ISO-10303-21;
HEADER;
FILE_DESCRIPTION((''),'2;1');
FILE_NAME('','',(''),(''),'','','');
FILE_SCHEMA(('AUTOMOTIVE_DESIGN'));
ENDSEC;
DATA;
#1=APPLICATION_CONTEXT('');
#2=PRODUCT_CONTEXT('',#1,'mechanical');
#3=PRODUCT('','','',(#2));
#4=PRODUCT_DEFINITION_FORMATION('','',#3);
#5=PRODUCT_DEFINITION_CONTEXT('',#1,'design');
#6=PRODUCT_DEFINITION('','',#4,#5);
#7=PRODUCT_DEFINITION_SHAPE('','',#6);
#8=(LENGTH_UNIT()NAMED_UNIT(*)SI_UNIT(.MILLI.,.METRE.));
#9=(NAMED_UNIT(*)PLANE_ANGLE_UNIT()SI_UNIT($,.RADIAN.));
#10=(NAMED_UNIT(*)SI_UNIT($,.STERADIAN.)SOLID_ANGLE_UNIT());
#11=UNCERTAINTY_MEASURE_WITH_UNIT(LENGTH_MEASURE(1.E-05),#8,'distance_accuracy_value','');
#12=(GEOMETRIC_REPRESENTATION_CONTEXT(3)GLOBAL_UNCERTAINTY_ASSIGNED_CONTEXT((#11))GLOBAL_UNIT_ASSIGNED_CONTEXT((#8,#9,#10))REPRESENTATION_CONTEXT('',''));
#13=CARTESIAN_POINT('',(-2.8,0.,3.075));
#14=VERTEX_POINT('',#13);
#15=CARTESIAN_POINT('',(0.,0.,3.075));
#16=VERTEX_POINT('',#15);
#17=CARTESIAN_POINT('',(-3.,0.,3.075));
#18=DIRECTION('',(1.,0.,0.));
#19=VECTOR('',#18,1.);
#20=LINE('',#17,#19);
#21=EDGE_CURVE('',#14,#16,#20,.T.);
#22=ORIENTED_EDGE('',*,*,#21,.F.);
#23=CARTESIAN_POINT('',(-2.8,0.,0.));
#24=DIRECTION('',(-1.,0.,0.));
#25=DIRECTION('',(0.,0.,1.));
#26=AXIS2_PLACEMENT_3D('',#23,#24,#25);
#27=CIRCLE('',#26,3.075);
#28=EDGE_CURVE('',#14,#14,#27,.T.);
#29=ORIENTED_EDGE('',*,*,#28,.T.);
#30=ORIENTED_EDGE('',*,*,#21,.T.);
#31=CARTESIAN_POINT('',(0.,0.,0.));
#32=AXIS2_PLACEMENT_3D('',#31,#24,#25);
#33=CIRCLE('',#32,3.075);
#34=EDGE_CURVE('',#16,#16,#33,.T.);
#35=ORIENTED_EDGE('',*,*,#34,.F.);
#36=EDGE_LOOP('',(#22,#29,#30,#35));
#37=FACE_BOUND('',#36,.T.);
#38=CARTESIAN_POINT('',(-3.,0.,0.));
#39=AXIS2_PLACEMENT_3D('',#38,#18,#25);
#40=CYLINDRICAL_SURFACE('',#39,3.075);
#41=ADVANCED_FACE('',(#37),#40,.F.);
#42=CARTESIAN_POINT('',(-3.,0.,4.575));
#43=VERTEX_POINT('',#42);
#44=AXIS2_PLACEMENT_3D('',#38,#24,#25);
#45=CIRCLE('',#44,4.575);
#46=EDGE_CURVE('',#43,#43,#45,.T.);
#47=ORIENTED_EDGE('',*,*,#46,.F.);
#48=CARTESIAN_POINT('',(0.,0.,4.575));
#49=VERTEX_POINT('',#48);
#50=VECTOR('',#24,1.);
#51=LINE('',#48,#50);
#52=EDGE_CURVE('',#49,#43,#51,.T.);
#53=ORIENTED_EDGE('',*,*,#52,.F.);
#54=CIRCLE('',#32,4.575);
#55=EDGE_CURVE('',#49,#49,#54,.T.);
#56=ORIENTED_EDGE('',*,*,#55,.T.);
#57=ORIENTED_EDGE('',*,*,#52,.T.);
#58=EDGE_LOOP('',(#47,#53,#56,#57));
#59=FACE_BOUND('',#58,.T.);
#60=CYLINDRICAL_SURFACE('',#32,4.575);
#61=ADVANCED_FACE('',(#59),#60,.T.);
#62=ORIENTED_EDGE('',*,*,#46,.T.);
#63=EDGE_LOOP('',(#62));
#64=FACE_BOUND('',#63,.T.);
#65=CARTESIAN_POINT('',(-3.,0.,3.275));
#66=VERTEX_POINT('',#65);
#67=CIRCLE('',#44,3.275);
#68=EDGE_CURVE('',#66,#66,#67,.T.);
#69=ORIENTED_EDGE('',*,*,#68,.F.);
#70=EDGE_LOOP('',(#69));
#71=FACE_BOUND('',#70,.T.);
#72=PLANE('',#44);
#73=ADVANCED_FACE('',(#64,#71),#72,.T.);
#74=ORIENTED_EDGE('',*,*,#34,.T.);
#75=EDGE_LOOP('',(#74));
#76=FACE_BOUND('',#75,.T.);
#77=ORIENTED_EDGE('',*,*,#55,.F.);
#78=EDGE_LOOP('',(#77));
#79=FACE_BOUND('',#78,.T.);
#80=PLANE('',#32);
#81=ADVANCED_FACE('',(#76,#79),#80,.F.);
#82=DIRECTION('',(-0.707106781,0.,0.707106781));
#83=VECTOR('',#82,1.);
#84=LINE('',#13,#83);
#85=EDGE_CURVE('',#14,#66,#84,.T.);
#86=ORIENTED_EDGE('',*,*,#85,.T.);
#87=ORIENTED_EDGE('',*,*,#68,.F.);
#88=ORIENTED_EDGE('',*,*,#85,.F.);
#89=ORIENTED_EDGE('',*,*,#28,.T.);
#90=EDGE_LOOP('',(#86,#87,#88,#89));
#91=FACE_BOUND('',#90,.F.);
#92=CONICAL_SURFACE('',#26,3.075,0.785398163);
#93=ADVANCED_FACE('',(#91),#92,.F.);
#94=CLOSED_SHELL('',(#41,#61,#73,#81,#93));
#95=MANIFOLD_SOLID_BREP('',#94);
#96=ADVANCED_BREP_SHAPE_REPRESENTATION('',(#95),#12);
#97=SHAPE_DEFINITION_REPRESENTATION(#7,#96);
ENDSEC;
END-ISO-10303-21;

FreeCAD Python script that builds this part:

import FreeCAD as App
import Part
import Sketcher

V = App.Vector


def edges_at(feature, points):
    """Names of the edges that pass closest to the given points."""
    edges = feature.Shape.Edges
    near = lambda p: min(range(len(edges)), key=lambda i: edges[i].distToShape(Part.Vertex(*p))[0])
    return sorted({f"Edge{near(p) + 1}" for p in points})

doc = App.newDocument("Part")
params = doc.addObject("Spreadsheet::Sheet", "Params")
for row, (alias, value) in enumerate([
    ("sketch1_width", "3 mm"),
    ("sketch1_height", "1.5 mm"),
    ("revolution_angle", "360 deg"),
    ("chamfer_size", "0.2 mm"),
], start=1):
    params.set(f"A{row}", alias)
    params.set(f"B{row}", "=" + value)
    params.setAlias(f"B{row}", alias)

body = doc.addObject("PartDesign::Body", "Body")

sketch1 = body.newObject("Sketcher::SketchObject", "Sketch")
sketch1.AttachmentSupport = (doc.getObject("XZ_Plane"), [""])
sketch1.MapMode = "FlatFace"
sketch1.addGeometry([
    Part.LineSegment(V(-3, 4.6, 0), V(-3, 3.1, 0)),
    Part.LineSegment(V(-3, 3.1, 0), V(0, 3.1, 0)),
    Part.LineSegment(V(0, 3.1, 0), V(0, 4.6, 0)),
    Part.LineSegment(V(0, 4.6, 0), V(-3, 4.6, 0)),
], False)
sketch1.addConstraint([
    Sketcher.Constraint("Coincident", 0, 2, 1, 1),
    Sketcher.Constraint("Coincident", 1, 2, 2, 1),
    Sketcher.Constraint("Coincident", 2, 2, 3, 1),
    Sketcher.Constraint("Coincident", 3, 2, 0, 1),
    Sketcher.Constraint("Vertical", 0),
    Sketcher.Constraint("Horizontal", 1),
    Sketcher.Constraint("Vertical", 2),
    Sketcher.Constraint("Horizontal", 3),
    Sketcher.Constraint("PointOnObject", 1, 2, -2),
    Sketcher.Constraint("DistanceX", 1, 1, 1, 2, 3.0),
    Sketcher.Constraint("DistanceY", 0, 2, 0, 1, 1.5),
    Sketcher.Constraint("DistanceY", -1, 1, 0, 2, 3.075),
])
sketch1.setExpression("Constraints[9]", "Params.sketch1_width")
sketch1.setExpression("Constraints[10]", "Params.sketch1_height")
revolution = body.newObject("PartDesign::Revolution", "Revolution")
revolution.Profile = sketch1
revolution.ReferenceAxis = (sketch1, ["H_Axis"])
revolution.setExpression("Angle", "Params.revolution_angle")
doc.recompute()

chamfer = body.newObject("PartDesign::Chamfer", "Chamfer")
chamfer.Base = (revolution, edges_at(revolution, [(-3, 0, -3.075)]))
chamfer.setExpression("Size", "Params.chamfer_size")

doc.recompute()
